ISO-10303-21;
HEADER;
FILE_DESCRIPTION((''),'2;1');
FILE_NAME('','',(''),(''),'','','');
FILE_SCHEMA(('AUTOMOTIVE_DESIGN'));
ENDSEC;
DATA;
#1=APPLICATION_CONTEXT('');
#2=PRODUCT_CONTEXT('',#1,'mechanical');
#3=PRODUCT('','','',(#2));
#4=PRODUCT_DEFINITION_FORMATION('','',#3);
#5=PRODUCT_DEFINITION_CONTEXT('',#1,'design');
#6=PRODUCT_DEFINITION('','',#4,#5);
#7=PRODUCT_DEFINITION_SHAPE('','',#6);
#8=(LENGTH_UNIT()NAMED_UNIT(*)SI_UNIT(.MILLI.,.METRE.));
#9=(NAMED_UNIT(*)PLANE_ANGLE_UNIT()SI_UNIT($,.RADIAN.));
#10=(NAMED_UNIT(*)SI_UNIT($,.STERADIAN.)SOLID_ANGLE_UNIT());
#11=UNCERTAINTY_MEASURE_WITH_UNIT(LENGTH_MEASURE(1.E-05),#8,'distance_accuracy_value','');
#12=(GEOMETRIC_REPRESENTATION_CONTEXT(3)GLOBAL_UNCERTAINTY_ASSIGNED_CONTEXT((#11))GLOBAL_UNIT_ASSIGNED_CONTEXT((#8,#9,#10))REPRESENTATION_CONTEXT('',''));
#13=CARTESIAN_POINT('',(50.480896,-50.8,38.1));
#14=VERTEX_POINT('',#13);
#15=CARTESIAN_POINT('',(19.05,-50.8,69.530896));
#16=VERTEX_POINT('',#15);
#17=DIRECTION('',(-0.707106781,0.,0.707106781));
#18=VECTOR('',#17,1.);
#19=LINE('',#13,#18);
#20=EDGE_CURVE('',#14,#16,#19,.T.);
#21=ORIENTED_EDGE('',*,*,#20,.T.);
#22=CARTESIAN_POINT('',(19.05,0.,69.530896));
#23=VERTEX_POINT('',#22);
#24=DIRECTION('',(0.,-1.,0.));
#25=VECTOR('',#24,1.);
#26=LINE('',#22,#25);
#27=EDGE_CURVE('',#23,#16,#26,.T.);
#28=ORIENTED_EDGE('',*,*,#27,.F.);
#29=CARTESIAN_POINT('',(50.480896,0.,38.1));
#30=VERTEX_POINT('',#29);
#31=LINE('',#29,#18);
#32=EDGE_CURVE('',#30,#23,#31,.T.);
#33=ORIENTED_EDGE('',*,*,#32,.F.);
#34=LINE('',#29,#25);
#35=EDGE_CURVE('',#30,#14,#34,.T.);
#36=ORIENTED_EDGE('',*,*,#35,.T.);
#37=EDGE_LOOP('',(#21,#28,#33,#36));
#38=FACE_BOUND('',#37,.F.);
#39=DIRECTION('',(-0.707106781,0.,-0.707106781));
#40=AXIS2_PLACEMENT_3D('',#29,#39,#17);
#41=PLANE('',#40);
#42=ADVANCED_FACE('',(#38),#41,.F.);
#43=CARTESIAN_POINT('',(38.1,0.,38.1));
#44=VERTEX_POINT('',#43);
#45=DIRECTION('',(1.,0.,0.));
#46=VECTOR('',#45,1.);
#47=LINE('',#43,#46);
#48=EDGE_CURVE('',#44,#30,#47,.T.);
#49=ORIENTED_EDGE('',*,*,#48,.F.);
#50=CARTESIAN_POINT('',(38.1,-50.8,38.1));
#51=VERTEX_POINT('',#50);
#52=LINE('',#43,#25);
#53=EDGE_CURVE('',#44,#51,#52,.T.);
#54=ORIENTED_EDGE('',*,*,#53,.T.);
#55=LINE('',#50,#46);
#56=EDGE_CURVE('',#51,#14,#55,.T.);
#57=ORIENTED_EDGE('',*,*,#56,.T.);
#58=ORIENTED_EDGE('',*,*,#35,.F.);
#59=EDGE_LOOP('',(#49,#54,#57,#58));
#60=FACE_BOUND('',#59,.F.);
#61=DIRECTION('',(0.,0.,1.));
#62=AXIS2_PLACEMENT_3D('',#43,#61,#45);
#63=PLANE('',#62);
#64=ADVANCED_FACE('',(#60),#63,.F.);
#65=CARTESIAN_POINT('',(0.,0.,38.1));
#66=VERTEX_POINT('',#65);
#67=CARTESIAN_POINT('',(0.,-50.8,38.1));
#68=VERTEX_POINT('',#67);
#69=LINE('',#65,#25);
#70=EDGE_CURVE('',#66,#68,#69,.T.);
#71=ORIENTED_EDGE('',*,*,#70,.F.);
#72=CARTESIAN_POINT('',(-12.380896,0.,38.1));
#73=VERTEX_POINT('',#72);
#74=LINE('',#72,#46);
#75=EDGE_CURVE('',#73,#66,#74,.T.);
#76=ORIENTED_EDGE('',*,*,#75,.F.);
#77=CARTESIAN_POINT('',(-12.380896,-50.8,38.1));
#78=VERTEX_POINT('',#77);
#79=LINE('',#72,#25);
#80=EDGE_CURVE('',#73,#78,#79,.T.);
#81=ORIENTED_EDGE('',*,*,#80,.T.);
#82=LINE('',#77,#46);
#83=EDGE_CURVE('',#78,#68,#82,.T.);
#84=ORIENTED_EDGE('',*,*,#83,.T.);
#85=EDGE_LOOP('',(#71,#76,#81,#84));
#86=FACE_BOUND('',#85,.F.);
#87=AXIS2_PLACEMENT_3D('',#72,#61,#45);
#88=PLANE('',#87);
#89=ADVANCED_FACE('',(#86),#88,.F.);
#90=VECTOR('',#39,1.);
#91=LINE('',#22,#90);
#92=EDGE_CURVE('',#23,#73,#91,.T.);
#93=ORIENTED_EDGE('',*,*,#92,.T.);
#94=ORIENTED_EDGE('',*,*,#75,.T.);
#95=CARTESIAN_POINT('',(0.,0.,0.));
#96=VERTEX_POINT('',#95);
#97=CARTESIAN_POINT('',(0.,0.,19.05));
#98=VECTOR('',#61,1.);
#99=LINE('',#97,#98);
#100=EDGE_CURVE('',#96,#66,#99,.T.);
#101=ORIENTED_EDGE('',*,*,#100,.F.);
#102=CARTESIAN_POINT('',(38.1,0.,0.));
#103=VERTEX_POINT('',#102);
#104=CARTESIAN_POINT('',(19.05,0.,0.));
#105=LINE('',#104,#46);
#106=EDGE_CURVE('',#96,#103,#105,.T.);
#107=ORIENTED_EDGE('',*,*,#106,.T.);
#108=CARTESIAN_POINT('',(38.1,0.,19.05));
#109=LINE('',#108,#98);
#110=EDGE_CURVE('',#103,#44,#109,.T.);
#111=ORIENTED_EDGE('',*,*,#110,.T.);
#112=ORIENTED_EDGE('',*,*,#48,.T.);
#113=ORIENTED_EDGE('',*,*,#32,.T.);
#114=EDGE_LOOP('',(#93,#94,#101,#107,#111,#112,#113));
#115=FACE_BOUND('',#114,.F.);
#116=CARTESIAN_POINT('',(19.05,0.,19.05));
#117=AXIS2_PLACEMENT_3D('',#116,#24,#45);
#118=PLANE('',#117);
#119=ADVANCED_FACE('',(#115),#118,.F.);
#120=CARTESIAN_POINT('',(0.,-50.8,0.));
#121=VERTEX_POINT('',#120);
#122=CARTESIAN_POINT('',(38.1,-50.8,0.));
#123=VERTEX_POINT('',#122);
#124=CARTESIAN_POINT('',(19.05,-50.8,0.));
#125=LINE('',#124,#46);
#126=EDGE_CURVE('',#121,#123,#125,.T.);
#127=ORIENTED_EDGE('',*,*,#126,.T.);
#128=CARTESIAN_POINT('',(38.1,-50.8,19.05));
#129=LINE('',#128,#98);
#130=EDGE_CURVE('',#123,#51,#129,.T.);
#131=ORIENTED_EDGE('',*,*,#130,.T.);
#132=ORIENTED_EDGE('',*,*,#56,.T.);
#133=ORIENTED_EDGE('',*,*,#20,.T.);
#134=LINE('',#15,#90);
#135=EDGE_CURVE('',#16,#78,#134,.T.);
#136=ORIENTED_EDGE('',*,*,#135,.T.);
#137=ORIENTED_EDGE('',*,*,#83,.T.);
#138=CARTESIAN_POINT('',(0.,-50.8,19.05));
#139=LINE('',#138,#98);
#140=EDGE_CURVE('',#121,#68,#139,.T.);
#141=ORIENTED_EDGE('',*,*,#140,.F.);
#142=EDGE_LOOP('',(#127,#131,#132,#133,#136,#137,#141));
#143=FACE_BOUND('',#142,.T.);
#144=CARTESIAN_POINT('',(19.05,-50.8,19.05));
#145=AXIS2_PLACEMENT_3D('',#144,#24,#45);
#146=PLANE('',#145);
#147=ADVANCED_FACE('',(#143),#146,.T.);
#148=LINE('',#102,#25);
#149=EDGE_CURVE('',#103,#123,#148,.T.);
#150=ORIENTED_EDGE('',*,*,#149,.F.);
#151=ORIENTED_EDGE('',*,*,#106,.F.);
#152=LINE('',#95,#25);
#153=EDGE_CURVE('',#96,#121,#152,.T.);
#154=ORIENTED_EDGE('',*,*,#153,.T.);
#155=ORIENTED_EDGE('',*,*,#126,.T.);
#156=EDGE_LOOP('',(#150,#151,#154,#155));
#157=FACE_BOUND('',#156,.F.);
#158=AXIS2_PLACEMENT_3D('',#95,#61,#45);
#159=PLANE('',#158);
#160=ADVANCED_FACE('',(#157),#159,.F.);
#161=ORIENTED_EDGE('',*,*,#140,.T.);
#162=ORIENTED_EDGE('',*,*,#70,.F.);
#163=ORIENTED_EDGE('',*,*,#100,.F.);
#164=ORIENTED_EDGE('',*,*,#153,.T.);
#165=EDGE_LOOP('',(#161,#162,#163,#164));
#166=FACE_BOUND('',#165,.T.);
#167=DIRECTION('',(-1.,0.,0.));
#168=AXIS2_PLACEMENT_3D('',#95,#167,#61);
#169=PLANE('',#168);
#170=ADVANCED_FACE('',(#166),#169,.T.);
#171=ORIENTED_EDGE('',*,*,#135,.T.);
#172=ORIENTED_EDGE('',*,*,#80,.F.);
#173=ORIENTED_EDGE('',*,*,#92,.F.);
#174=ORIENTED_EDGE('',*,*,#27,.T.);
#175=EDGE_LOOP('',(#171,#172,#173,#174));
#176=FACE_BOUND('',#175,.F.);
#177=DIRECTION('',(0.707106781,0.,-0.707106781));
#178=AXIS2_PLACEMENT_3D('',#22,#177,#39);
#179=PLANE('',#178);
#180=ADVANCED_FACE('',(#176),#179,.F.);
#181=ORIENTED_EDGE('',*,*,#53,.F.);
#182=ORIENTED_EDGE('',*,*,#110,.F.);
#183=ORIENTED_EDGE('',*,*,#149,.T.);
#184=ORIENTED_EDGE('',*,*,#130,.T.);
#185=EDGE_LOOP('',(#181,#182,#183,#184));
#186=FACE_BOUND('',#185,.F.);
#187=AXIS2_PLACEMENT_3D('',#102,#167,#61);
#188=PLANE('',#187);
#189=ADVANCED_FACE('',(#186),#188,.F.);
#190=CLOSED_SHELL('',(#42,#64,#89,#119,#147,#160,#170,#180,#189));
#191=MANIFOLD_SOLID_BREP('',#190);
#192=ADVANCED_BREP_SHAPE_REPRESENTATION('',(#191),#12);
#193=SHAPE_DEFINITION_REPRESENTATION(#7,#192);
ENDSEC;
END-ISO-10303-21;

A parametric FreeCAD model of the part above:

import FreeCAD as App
import Part
import Sketcher
from FreeCAD import Vector
Q = App.Units.Quantity

doc = App.newDocument("Part")
body = doc.addObject("PartDesign::Body", "Body")

sketch1 = doc.addObject("Sketcher::SketchObject", "Sketch")
body.addObject(sketch1)
sketch1.AttachmentSupport = (doc.XZ_Plane, [""])
sketch1.MapMode = "FlatFace"
sketch1.addGeometry(Part.LineSegment(Vector(0, 38.1, 0), Vector(0, 0, 0)), False)
sketch1.addGeometry(Part.LineSegment(Vector(0, 0, 0), Vector(38.1, 0, 0)), False)
sketch1.addGeometry(Part.LineSegment(Vector(38.1, 0, 0), Vector(38.1, 38.1, 0)), False)
sketch1.addGeometry(Part.LineSegment(Vector(38.1, 38.1, 0), Vector(50.480896, 38.1, 0)), False)
sketch1.addGeometry(Part.LineSegment(Vector(50.480896, 38.1, 0), Vector(19.05, 69.530896, 0)), False)
sketch1.addGeometry(Part.LineSegment(Vector(19.05, 69.530896, 0), Vector(-12.380896, 38.1, 0)), False)
sketch1.addGeometry(Part.LineSegment(Vector(-12.380896, 38.1, 0), Vector(0, 38.1, 0)), False)
sketch1.addConstraint(Sketcher.Constraint("Coincident", 0, 2, 1, 1))
sketch1.addConstraint(Sketcher.Constraint("Coincident", 1, 2, 2, 1))
sketch1.addConstraint(Sketcher.Constraint("Coincident", 2, 2, 3, 1))
sketch1.addConstraint(Sketcher.Constraint("Coincident", 3, 2, 4, 1))
sketch1.addConstraint(Sketcher.Constraint("Coincident", 4, 2, 5, 1))
sketch1.addConstraint(Sketcher.Constraint("Coincident", 5, 2, 6, 1))
sketch1.addConstraint(Sketcher.Constraint("Coincident", 6, 2, 0, 1))
sketch1.addConstraint(Sketcher.Constraint("Vertical", 0))
sketch1.addConstraint(Sketcher.Constraint("Horizontal", 1))
sketch1.addConstraint(Sketcher.Constraint("Vertical", 2))
sketch1.addConstraint(Sketcher.Constraint("Horizontal", 3))
sketch1.addConstraint(Sketcher.Constraint("Horizontal", 6))
sketch1.addConstraint(Sketcher.Constraint("Coincident", 0, 2, -1, 1))
sketch1.addConstraint(Sketcher.Constraint("Perpendicular", 4, 5))
sketch1.addConstraint(Sketcher.Constraint("Horizontal", 3, 2, 5, 2))
sketch1.addConstraint(Sketcher.Constraint("Equal", 3, 6))
sketch1.addConstraint(Sketcher.Constraint("Equal", 1, 0))
sketch1.addConstraint(Sketcher.Constraint("Equal", 4, 5))
sketch1.addConstraint(Sketcher.Constraint("DistanceX", 1, 1, 1, 2, Q("1.5 in")))
sketch1.addConstraint(Sketcher.Constraint("Distance", 4, Q("1.75 in")))
pad1 = doc.addObject("PartDesign::Pad", "Pad")
body.addObject(pad1)
pad1.Profile = sketch1
pad1.Length = Q("2 in")

doc.recompute()
